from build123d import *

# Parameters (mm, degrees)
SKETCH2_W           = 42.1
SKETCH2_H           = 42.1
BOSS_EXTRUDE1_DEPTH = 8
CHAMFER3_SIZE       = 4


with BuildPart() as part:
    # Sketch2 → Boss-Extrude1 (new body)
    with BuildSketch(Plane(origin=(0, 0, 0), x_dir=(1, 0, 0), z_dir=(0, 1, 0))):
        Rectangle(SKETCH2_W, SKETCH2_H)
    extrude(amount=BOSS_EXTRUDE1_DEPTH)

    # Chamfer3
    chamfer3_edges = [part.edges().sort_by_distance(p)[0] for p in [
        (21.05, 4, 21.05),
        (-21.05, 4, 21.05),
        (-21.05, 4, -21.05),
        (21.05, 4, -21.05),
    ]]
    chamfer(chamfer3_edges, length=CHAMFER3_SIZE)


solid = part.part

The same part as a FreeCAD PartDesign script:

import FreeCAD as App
import Part
import Sketcher


def edges_at(feature, points):
    """Names of the edges that pass closest to the given points."""
    edges = feature.Shape.Edges
    near = lambda p: min(range(len(edges)), key=lambda i: edges[i].distToShape(Part.Vertex(*p))[0])
    return sorted({f"Edge{near(p) + 1}" for p in points})


def add_polygon(sketch, points):
    """Adds a closed chain of lines whose ends are joined by coincident constraints."""
    first, n = sketch.GeometryCount, len(points)
    for a, b in zip(points, points[1:] + points[:1]):
        sketch.addGeometry(Part.LineSegment(App.Vector(*a, 0), App.Vector(*b, 0)), False)
    for i in range(n):
        sketch.addConstraint(Sketcher.Constraint("Coincident", first + i, 2, first + (i + 1) % n, 1))

doc = App.newDocument("Part")
body = doc.addObject("PartDesign::Body", "Body")

sketch1 = body.newObject("Sketcher::SketchObject", "Sketch")
sketch1.AttachmentSupport = (doc.getObject("XZ_Plane"), [""])
sketch1.MapMode = "FlatFace"
add_polygon(sketch1, [(-21, -21), (-21, 21), (21, 21), (21, -21)])
sketch1.addConstraint(Sketcher.Constraint("Vertical", 0))
sketch1.addConstraint(Sketcher.Constraint("Horizontal", 1))
sketch1.addConstraint(Sketcher.Constraint("Vertical", 2))
sketch1.addConstraint(Sketcher.Constraint("Horizontal", 3))
sketch1.addConstraint(Sketcher.Constraint("Symmetric", 0, 2, 2, 2, -1, 1))
sketch1.addConstraint(Sketcher.Constraint("Equal", 3, 0))
sketch1.addConstraint(Sketcher.Constraint("DistanceX", 1, 1, 1, 2, 42.1))
pad1 = body.newObject("PartDesign::Pad", "Pad")
pad1.Profile = sketch1
pad1.Length = 8
pad1.Reversed = True
doc.recompute()

chamfer = body.newObject("PartDesign::Chamfer", "Chamfer")
chamfer.Base = (pad1, edges_at(pad1, [
    (21.05, 4, 21.05),
    (-21.05, 4, 21.05),
    (-21.05, 4, -21.05),
    (21.05, 4, -21.05),
]))
chamfer.Size = 4

doc.recompute()
